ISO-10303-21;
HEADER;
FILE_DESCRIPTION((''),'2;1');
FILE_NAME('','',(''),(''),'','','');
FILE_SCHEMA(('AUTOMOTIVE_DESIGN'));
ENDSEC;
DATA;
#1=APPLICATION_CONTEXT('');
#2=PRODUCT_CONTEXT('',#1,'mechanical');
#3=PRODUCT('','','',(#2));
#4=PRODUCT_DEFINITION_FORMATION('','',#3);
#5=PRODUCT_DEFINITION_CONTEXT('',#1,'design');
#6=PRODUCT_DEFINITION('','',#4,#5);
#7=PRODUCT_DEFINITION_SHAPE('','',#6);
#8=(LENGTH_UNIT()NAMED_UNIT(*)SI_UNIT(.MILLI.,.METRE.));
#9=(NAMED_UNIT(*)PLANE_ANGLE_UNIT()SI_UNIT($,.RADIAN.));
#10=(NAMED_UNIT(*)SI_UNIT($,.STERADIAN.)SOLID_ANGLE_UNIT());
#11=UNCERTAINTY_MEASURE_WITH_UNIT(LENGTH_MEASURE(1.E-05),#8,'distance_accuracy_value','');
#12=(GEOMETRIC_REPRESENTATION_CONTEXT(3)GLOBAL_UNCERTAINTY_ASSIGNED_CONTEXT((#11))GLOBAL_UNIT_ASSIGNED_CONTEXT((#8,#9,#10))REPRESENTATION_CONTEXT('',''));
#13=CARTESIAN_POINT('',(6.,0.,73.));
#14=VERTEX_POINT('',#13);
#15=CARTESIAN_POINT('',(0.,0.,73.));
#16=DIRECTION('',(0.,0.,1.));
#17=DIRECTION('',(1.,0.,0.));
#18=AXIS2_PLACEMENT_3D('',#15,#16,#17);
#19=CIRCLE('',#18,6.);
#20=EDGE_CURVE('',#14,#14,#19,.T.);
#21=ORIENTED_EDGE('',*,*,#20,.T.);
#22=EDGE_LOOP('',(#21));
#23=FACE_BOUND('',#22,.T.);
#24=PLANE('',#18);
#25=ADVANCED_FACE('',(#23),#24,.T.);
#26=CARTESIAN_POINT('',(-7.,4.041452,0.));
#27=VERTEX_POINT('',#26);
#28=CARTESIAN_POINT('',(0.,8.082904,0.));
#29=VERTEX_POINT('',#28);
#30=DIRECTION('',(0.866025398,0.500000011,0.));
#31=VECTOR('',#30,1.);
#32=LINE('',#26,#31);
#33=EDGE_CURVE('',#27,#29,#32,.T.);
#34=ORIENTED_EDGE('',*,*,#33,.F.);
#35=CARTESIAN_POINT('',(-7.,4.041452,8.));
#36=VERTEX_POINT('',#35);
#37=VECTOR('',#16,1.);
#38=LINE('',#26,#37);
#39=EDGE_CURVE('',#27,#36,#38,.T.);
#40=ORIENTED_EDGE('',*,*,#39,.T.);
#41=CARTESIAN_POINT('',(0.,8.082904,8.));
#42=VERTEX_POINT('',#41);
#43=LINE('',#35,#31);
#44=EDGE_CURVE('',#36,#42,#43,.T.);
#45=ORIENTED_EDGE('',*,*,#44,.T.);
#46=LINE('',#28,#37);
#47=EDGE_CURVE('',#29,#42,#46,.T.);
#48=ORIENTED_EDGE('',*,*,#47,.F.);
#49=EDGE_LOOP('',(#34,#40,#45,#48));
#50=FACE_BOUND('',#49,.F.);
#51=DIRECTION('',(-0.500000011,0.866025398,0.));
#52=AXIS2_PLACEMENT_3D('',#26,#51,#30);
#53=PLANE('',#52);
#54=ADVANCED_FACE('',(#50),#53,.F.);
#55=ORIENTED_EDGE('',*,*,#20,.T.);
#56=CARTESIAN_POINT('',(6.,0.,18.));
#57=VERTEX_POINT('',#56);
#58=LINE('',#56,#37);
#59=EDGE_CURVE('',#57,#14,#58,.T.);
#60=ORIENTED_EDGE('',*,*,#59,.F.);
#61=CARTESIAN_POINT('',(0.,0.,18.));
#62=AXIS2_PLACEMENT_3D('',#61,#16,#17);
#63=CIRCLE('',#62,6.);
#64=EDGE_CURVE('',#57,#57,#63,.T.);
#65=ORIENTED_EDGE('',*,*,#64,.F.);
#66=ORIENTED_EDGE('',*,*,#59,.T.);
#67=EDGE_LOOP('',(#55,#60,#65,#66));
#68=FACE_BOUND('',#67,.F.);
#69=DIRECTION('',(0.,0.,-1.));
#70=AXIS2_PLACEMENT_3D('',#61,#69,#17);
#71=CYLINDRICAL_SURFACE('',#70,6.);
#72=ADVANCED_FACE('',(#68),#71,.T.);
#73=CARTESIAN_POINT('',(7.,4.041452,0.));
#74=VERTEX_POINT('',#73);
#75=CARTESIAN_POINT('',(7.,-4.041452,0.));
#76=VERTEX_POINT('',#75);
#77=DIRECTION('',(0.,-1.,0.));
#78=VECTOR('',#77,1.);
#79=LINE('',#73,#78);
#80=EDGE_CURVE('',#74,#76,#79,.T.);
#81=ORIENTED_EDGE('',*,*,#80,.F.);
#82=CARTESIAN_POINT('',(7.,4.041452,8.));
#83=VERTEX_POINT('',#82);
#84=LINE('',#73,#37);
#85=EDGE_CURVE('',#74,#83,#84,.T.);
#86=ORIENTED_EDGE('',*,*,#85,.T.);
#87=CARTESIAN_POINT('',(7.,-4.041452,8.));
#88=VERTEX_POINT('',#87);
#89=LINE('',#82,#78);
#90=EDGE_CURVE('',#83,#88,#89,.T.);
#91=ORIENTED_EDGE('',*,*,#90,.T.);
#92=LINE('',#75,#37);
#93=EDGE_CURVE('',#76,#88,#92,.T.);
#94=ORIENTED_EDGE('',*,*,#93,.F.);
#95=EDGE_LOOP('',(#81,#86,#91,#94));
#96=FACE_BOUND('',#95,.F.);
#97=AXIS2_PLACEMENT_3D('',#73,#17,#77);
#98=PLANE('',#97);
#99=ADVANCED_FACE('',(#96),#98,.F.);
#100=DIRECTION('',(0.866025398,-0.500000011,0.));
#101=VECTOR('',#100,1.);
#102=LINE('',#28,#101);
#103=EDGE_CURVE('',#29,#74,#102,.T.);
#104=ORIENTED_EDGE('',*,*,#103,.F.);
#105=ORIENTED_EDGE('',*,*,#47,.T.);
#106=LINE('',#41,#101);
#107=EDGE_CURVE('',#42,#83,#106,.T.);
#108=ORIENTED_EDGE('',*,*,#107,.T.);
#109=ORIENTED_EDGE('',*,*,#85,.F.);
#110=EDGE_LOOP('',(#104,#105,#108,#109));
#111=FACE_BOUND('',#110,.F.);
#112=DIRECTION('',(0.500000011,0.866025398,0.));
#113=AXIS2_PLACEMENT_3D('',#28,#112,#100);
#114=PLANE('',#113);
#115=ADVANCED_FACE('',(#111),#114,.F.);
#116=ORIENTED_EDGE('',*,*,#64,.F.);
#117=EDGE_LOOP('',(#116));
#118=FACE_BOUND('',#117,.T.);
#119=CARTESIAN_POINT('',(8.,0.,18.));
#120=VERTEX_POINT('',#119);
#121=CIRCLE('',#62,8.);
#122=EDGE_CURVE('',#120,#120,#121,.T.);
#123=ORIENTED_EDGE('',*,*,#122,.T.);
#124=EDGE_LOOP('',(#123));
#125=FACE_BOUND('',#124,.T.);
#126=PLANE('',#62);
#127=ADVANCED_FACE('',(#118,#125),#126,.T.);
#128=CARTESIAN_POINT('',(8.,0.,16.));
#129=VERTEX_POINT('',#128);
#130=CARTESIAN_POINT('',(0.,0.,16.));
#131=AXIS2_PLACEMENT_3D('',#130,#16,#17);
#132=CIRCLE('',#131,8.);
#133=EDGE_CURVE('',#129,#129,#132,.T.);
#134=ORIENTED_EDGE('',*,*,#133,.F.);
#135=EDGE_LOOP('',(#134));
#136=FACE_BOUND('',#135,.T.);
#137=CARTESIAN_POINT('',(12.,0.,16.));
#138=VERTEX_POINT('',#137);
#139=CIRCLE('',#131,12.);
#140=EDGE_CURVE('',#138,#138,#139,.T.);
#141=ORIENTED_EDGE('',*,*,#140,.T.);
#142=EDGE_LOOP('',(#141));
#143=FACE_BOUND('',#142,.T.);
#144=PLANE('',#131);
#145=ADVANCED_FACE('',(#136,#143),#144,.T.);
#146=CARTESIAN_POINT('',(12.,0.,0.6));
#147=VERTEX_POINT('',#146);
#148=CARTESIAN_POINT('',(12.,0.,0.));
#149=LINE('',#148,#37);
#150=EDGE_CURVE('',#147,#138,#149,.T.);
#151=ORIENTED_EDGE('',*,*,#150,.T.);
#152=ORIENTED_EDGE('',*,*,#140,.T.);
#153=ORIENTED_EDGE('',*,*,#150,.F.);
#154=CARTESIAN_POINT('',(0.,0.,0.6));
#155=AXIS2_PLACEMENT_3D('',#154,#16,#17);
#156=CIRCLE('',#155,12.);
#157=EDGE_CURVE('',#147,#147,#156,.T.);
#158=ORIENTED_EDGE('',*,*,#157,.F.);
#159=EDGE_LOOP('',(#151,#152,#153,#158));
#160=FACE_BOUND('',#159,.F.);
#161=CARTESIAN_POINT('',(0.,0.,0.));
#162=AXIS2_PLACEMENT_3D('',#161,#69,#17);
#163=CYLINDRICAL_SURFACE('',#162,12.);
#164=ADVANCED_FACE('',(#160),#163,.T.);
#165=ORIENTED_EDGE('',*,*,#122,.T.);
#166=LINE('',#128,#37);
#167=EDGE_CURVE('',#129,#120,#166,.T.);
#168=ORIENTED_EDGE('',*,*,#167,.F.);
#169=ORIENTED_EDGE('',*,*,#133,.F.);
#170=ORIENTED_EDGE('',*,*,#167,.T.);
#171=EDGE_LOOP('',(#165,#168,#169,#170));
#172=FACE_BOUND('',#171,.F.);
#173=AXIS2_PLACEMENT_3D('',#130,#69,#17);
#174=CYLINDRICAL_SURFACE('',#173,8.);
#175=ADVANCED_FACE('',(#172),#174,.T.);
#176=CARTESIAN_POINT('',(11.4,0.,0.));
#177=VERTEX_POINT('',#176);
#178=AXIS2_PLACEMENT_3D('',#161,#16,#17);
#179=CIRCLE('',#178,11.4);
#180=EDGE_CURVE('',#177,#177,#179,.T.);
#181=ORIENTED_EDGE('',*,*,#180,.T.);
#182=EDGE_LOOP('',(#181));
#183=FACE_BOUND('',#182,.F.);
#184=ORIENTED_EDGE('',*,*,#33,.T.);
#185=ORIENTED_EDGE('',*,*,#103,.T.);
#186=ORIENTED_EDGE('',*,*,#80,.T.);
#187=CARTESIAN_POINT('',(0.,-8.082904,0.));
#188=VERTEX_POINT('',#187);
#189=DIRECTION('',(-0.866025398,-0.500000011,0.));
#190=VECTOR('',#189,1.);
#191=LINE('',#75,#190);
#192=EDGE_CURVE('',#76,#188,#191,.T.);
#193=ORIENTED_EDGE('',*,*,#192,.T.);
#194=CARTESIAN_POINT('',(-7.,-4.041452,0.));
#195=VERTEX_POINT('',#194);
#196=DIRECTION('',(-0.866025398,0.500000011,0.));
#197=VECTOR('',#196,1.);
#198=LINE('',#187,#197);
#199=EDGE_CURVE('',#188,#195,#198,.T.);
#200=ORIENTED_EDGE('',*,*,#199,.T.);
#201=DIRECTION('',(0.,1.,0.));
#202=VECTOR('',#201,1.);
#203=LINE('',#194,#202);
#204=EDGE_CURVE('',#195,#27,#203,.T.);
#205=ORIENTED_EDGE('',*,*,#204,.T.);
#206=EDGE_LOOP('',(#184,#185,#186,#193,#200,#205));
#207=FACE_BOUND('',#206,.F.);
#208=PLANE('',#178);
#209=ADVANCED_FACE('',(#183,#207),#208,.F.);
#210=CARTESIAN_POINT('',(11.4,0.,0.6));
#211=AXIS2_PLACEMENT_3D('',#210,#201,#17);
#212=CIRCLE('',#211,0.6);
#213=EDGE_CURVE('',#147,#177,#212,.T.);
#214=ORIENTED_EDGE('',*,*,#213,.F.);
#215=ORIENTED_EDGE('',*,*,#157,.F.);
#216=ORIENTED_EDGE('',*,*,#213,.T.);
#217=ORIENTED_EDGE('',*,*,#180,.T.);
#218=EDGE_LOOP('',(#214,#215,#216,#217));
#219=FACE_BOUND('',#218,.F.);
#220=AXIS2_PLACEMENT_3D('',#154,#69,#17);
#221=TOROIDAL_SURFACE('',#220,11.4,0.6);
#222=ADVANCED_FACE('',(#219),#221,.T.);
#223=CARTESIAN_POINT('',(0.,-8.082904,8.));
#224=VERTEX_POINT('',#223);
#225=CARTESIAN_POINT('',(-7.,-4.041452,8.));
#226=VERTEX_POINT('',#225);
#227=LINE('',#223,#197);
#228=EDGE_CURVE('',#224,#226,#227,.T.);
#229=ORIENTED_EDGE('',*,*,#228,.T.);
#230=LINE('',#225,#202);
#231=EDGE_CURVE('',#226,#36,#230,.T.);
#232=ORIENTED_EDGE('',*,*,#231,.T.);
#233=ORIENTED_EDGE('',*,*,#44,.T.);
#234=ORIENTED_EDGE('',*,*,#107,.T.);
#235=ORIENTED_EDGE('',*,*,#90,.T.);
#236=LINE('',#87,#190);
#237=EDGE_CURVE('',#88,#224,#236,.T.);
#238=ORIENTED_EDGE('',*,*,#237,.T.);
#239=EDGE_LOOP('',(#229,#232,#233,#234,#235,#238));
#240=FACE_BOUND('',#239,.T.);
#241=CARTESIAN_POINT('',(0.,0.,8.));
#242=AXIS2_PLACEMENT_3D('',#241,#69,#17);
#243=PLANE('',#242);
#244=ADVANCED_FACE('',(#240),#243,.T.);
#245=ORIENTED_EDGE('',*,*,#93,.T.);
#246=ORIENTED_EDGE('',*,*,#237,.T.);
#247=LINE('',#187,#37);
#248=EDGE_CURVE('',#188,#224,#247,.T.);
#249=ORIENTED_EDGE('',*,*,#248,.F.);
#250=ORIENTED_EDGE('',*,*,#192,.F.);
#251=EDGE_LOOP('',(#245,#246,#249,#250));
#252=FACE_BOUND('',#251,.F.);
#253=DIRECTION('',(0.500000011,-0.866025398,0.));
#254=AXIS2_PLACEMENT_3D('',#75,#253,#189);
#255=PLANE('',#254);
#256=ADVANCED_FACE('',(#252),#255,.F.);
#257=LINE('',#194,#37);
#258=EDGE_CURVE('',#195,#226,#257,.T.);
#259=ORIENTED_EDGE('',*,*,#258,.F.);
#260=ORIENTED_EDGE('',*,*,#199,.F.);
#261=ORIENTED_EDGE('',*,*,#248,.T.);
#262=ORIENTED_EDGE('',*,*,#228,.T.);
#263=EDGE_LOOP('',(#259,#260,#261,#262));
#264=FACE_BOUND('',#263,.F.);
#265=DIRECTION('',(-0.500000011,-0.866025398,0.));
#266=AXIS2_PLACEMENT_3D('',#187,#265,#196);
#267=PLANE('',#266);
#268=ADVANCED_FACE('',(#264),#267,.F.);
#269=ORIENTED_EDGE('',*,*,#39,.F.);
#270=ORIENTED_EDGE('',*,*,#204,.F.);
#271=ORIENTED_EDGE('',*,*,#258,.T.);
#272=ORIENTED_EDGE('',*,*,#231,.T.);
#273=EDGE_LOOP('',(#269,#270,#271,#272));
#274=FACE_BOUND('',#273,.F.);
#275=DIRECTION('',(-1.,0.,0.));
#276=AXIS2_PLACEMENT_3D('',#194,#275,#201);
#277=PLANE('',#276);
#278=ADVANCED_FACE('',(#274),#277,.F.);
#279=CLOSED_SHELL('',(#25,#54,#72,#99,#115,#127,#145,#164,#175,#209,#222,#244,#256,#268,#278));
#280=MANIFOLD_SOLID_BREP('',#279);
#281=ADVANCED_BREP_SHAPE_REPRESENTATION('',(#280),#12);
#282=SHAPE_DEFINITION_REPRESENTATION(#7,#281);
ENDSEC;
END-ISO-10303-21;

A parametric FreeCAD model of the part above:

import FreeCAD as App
import Part
import Sketcher
Q = App.Units.Quantity


def edges_at(feature, points):
    """Names of the edges that pass closest to the given points."""
    edges = feature.Shape.Edges
    near = lambda p: min(range(len(edges)), key=lambda i: edges[i].distToShape(Part.Vertex(*p))[0])
    return sorted({f"Edge{near(p) + 1}" for p in points})

doc = App.newDocument("Part")
body = doc.addObject("PartDesign::Body", "Body")

# Sketch on XY plane
sketch1 = doc.addObject("Sketcher::SketchObject", "Sketch")
body.addObject(sketch1)
sketch1.AttachmentSupport = (doc.XY_Plane, [""])
sketch1.MapMode = "FlatFace"
sketch1.addGeometry(Part.Circle(App.Vector(0, 0, 0), App.Vector(0, 0, 1), 12), False)
sketch1.addConstraint([
    Sketcher.Constraint("Coincident", 0, 3, -1, 1),
    Sketcher.Constraint("Diameter", 0, 24.0),
])
pad1 = doc.addObject("PartDesign::Pad", "Pad")
body.addObject(pad1)
pad1.Profile = sketch1
pad1.Length = 16

# Sketch on XY plane
sketch2 = doc.addObject("Sketcher::SketchObject", "Sketch001")
body.addObject(sketch2)
sketch2.AttachmentSupport = (doc.XY_Plane, [""])
sketch2.MapMode = "FlatFace"
sketch2.addGeometry([
    Part.LineSegment(App.Vector(0, 8, 0), App.Vector(7, 4, 0)),  # 0
    Part.LineSegment(App.Vector(7, 4, 0), App.Vector(7, -4, 0)),  # 1
    Part.LineSegment(App.Vector(7, -4, 0), App.Vector(0, -8, 0)),  # 2
    Part.LineSegment(App.Vector(0, -8, 0), App.Vector(-7, -4, 0)),  # 3
    Part.LineSegment(App.Vector(-7, -4, 0), App.Vector(-7, 4, 0)),  # 4
    Part.LineSegment(App.Vector(-7, 4, 0), App.Vector(0, 8, 0)),  # 5
], False)
sketch2.addConstraint([
    Sketcher.Constraint("Coincident", 0, 2, 1, 1),
    Sketcher.Constraint("Coincident", 1, 2, 2, 1),
    Sketcher.Constraint("Coincident", 2, 2, 3, 1),
    Sketcher.Constraint("Coincident", 3, 2, 4, 1),
    Sketcher.Constraint("Coincident", 4, 2, 5, 1),
    Sketcher.Constraint("Coincident", 5, 2, 0, 1),
    Sketcher.Constraint("Vertical", 1),
    Sketcher.Constraint("Vertical", 4),
    Sketcher.Constraint("Symmetric", 0, 2, 3, 2, -1, 1),
    Sketcher.Constraint("Symmetric", 2, 2, 5, 2, -1, 1),
    Sketcher.Constraint("PointOnObject", 2, 2, -2),
    Sketcher.Constraint("Parallel", 2, 5),
    Sketcher.Constraint("Horizontal", 1, 2, 3, 2),
    Sketcher.Constraint("Angle", 0, Q("-30.000001 deg")),
    Sketcher.Constraint("DistanceX", -1, 1, 0, 2, 7.0),
    Sketcher.Constraint("DistanceY", 1, 2, 1, 1, 8.082904),
])
pocket1 = doc.addObject("PartDesign::Pocket", "Pocket")
body.addObject(pocket1)
pocket1.Profile = sketch2
pocket1.Length = 8
pocket1.Reversed = True
doc.recompute()

fillet = doc.addObject("PartDesign::Fillet", "Fillet")
body.addObject(fillet)
fillet.Base = (pocket1, edges_at(pocket1, [(-12, 0, 0)]))
fillet.Radius = 0.6

# Sketch on XY plane
sketch3 = doc.addObject("Sketcher::SketchObject", "Sketch002")
body.addObject(sketch3)
sketch3.AttachmentSupport = (doc.XY_Plane, [""])
sketch3.MapMode = "FlatFace"
sketch3.AttachmentOffset = App.Placement(App.Vector(0, 0, 16), App.Rotation())
sketch3.addGeometry(Part.Circle(App.Vector(0, 0, 0), App.Vector(0, 0, 1), 8), False)
sketch3.addConstraint([
    Sketcher.Constraint("Coincident", 0, 3, -1, 1),
    Sketcher.Constraint("Diameter", 0, 16.0),
])
pad2 = doc.addObject("PartDesign::Pad", "Pad001")
body.addObject(pad2)
pad2.Profile = sketch3
pad2.Length = 2

# Sketch on XY plane
sketch4 = doc.addObject("Sketcher::SketchObject", "Sketch003")
body.addObject(sketch4)
sketch4.AttachmentSupport = (doc.XY_Plane, [""])
sketch4.MapMode = "FlatFace"
sketch4.AttachmentOffset = App.Placement(App.Vector(0, 0, 18), App.Rotation())
sketch4.addGeometry(Part.Circle(App.Vector(0, 0, 0), App.Vector(0, 0, 1), 6), False)
sketch4.addConstraint([
    Sketcher.Constraint("Coincident", 0, 3, -1, 1),
    Sketcher.Constraint("Diameter", 0, 12.0),
])
pad3 = doc.addObject("PartDesign::Pad", "Pad002")
body.addObject(pad3)
pad3.Profile = sketch4
pad3.Length = 55

doc.recompute()
